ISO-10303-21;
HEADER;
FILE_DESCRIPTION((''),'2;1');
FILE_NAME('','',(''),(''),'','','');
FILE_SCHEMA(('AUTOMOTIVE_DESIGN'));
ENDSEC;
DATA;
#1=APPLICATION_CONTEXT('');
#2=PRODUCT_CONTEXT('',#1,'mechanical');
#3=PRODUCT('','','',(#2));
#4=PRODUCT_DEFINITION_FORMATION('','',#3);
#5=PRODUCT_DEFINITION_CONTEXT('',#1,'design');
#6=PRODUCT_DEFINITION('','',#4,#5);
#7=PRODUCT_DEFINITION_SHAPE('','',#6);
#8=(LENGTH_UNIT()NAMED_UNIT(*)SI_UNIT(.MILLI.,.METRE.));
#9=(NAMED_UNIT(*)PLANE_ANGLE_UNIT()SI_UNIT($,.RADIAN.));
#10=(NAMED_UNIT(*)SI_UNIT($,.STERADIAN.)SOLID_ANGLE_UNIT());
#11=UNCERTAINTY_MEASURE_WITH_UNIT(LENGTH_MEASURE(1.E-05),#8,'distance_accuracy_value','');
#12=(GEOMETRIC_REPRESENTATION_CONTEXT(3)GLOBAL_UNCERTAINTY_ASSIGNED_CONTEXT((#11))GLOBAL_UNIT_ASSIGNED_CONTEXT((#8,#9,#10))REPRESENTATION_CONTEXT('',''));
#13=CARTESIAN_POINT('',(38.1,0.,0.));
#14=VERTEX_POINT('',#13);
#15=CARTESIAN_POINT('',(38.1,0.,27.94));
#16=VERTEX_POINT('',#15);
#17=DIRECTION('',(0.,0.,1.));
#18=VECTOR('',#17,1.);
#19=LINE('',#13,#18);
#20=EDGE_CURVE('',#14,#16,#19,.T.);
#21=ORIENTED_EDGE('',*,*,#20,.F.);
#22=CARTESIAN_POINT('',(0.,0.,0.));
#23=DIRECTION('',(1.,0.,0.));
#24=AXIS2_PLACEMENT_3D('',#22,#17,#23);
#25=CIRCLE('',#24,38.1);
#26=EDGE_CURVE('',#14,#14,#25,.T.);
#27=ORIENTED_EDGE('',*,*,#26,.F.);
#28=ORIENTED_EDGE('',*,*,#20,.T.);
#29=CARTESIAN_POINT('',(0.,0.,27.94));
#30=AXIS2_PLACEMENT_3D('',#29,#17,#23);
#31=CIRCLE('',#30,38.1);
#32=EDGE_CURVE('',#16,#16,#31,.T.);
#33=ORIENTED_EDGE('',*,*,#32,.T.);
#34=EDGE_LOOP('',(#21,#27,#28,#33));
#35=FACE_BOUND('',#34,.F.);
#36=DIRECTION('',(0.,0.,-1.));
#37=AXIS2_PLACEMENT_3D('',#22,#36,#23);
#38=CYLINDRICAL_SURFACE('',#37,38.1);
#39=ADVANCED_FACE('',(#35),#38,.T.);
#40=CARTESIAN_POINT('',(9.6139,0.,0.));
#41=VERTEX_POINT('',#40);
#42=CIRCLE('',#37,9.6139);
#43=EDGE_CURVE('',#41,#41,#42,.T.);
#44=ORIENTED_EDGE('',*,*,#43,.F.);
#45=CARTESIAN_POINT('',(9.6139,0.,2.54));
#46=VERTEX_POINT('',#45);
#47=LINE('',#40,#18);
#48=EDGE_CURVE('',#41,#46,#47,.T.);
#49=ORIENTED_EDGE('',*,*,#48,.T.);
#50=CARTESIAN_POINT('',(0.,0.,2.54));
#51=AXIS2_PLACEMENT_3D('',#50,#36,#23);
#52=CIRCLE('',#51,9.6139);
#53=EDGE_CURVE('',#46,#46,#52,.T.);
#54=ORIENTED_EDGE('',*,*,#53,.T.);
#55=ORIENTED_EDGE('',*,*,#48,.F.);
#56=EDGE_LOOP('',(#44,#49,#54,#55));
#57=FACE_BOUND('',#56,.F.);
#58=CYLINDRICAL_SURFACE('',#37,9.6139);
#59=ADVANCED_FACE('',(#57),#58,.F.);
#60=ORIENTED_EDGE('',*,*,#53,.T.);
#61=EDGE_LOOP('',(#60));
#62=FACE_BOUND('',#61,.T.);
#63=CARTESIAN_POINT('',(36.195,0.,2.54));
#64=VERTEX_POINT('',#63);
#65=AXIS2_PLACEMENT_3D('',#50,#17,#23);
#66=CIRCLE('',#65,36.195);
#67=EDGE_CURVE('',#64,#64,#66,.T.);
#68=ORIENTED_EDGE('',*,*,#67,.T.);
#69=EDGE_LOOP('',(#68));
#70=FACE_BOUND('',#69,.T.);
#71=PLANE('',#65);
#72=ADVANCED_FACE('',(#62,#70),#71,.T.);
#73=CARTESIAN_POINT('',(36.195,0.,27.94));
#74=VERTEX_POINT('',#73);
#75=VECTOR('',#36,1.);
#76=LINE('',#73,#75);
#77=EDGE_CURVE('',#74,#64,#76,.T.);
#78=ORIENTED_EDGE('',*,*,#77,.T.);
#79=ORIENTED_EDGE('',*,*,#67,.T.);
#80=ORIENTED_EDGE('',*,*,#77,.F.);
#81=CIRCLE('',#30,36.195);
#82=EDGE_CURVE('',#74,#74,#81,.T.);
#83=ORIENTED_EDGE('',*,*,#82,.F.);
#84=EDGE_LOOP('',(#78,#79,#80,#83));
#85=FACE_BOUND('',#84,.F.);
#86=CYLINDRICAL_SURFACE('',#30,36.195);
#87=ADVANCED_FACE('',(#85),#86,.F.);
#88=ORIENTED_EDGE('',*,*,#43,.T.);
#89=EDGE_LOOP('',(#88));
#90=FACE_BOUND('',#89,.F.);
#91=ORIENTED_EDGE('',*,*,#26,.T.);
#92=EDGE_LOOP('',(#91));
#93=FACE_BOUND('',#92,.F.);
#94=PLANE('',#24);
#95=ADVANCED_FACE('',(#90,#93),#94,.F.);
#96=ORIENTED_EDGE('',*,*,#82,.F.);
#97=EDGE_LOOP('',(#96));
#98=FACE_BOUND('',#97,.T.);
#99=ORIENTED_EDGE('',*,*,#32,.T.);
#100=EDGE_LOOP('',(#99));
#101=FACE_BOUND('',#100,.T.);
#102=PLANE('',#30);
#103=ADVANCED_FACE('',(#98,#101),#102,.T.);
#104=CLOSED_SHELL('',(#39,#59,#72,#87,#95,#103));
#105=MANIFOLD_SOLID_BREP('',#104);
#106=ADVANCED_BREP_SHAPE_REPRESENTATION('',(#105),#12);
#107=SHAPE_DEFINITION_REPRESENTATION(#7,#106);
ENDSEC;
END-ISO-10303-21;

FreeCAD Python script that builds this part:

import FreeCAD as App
import Part
import Sketcher

V = App.Vector
Q = App.Units.Quantity

doc = App.newDocument("Part")
body = doc.addObject("PartDesign::Body", "Body")

# Sketch on XY plane
sketch1 = body.newObject("Sketcher::SketchObject", "Sketch")
sketch1.AttachmentSupport = (doc.getObject("XY_Plane"), [""])
sketch1.MapMode = "FlatFace"
sketch1.addGeometry(Part.Circle(V(0, 0, 0), V(0, 0, 1), 38), False)
sketch1.addConstraint(Sketcher.Constraint("Coincident", 0, 3, -1, 1))
sketch1.addConstraint(Sketcher.Constraint("Diameter", 0, Q("3 in")))
pad1 = body.newObject("PartDesign::Pad", "Pad")
pad1.Profile = sketch1
pad1.Length = Q("1.1 in")

# Sketch on XY plane
sketch2 = body.newObject("Sketcher::SketchObject", "Sketch001")
sketch2.AttachmentSupport = (doc.getObject("XY_Plane"), [""])
sketch2.MapMode = "FlatFace"
sketch2.AttachmentOffset = App.Placement(V(0, 0, 1.1 * 25.4), App.Rotation())
sketch2.addGeometry(Part.Circle(V(0, 0, 0), V(0, 0, 1), 36), False)
sketch2.addConstraint(Sketcher.Constraint("Coincident", 0, 3, -1, 1))
sketch2.addConstraint(Sketcher.Constraint("Diameter", 0, Q("2.85 in")))
pocket1 = body.newObject("PartDesign::Pocket", "Pocket")
pocket1.Profile = sketch2
pocket1.Length = Q("1 in")

# Sketch on XY plane
sketch3 = body.newObject("Sketcher::SketchObject", "Sketch002")
sketch3.AttachmentSupport = (doc.getObject("XY_Plane"), [""])
sketch3.MapMode = "FlatFace"
sketch3.addGeometry(Part.Circle(V(0, 0, 0), V(0, 0, 1), 10), False)
sketch3.addConstraint(Sketcher.Constraint("Coincident", 0, 3, -1, 1))
sketch3.addConstraint(Sketcher.Constraint("Diameter", 0, Q("0.757 in")))
pocket2 = body.newObject("PartDesign::Pocket", "Pocket001")
pocket2.Profile = sketch3
pocket2.Type = "ThroughAll"
pocket2.Reversed = True

doc.recompute()
